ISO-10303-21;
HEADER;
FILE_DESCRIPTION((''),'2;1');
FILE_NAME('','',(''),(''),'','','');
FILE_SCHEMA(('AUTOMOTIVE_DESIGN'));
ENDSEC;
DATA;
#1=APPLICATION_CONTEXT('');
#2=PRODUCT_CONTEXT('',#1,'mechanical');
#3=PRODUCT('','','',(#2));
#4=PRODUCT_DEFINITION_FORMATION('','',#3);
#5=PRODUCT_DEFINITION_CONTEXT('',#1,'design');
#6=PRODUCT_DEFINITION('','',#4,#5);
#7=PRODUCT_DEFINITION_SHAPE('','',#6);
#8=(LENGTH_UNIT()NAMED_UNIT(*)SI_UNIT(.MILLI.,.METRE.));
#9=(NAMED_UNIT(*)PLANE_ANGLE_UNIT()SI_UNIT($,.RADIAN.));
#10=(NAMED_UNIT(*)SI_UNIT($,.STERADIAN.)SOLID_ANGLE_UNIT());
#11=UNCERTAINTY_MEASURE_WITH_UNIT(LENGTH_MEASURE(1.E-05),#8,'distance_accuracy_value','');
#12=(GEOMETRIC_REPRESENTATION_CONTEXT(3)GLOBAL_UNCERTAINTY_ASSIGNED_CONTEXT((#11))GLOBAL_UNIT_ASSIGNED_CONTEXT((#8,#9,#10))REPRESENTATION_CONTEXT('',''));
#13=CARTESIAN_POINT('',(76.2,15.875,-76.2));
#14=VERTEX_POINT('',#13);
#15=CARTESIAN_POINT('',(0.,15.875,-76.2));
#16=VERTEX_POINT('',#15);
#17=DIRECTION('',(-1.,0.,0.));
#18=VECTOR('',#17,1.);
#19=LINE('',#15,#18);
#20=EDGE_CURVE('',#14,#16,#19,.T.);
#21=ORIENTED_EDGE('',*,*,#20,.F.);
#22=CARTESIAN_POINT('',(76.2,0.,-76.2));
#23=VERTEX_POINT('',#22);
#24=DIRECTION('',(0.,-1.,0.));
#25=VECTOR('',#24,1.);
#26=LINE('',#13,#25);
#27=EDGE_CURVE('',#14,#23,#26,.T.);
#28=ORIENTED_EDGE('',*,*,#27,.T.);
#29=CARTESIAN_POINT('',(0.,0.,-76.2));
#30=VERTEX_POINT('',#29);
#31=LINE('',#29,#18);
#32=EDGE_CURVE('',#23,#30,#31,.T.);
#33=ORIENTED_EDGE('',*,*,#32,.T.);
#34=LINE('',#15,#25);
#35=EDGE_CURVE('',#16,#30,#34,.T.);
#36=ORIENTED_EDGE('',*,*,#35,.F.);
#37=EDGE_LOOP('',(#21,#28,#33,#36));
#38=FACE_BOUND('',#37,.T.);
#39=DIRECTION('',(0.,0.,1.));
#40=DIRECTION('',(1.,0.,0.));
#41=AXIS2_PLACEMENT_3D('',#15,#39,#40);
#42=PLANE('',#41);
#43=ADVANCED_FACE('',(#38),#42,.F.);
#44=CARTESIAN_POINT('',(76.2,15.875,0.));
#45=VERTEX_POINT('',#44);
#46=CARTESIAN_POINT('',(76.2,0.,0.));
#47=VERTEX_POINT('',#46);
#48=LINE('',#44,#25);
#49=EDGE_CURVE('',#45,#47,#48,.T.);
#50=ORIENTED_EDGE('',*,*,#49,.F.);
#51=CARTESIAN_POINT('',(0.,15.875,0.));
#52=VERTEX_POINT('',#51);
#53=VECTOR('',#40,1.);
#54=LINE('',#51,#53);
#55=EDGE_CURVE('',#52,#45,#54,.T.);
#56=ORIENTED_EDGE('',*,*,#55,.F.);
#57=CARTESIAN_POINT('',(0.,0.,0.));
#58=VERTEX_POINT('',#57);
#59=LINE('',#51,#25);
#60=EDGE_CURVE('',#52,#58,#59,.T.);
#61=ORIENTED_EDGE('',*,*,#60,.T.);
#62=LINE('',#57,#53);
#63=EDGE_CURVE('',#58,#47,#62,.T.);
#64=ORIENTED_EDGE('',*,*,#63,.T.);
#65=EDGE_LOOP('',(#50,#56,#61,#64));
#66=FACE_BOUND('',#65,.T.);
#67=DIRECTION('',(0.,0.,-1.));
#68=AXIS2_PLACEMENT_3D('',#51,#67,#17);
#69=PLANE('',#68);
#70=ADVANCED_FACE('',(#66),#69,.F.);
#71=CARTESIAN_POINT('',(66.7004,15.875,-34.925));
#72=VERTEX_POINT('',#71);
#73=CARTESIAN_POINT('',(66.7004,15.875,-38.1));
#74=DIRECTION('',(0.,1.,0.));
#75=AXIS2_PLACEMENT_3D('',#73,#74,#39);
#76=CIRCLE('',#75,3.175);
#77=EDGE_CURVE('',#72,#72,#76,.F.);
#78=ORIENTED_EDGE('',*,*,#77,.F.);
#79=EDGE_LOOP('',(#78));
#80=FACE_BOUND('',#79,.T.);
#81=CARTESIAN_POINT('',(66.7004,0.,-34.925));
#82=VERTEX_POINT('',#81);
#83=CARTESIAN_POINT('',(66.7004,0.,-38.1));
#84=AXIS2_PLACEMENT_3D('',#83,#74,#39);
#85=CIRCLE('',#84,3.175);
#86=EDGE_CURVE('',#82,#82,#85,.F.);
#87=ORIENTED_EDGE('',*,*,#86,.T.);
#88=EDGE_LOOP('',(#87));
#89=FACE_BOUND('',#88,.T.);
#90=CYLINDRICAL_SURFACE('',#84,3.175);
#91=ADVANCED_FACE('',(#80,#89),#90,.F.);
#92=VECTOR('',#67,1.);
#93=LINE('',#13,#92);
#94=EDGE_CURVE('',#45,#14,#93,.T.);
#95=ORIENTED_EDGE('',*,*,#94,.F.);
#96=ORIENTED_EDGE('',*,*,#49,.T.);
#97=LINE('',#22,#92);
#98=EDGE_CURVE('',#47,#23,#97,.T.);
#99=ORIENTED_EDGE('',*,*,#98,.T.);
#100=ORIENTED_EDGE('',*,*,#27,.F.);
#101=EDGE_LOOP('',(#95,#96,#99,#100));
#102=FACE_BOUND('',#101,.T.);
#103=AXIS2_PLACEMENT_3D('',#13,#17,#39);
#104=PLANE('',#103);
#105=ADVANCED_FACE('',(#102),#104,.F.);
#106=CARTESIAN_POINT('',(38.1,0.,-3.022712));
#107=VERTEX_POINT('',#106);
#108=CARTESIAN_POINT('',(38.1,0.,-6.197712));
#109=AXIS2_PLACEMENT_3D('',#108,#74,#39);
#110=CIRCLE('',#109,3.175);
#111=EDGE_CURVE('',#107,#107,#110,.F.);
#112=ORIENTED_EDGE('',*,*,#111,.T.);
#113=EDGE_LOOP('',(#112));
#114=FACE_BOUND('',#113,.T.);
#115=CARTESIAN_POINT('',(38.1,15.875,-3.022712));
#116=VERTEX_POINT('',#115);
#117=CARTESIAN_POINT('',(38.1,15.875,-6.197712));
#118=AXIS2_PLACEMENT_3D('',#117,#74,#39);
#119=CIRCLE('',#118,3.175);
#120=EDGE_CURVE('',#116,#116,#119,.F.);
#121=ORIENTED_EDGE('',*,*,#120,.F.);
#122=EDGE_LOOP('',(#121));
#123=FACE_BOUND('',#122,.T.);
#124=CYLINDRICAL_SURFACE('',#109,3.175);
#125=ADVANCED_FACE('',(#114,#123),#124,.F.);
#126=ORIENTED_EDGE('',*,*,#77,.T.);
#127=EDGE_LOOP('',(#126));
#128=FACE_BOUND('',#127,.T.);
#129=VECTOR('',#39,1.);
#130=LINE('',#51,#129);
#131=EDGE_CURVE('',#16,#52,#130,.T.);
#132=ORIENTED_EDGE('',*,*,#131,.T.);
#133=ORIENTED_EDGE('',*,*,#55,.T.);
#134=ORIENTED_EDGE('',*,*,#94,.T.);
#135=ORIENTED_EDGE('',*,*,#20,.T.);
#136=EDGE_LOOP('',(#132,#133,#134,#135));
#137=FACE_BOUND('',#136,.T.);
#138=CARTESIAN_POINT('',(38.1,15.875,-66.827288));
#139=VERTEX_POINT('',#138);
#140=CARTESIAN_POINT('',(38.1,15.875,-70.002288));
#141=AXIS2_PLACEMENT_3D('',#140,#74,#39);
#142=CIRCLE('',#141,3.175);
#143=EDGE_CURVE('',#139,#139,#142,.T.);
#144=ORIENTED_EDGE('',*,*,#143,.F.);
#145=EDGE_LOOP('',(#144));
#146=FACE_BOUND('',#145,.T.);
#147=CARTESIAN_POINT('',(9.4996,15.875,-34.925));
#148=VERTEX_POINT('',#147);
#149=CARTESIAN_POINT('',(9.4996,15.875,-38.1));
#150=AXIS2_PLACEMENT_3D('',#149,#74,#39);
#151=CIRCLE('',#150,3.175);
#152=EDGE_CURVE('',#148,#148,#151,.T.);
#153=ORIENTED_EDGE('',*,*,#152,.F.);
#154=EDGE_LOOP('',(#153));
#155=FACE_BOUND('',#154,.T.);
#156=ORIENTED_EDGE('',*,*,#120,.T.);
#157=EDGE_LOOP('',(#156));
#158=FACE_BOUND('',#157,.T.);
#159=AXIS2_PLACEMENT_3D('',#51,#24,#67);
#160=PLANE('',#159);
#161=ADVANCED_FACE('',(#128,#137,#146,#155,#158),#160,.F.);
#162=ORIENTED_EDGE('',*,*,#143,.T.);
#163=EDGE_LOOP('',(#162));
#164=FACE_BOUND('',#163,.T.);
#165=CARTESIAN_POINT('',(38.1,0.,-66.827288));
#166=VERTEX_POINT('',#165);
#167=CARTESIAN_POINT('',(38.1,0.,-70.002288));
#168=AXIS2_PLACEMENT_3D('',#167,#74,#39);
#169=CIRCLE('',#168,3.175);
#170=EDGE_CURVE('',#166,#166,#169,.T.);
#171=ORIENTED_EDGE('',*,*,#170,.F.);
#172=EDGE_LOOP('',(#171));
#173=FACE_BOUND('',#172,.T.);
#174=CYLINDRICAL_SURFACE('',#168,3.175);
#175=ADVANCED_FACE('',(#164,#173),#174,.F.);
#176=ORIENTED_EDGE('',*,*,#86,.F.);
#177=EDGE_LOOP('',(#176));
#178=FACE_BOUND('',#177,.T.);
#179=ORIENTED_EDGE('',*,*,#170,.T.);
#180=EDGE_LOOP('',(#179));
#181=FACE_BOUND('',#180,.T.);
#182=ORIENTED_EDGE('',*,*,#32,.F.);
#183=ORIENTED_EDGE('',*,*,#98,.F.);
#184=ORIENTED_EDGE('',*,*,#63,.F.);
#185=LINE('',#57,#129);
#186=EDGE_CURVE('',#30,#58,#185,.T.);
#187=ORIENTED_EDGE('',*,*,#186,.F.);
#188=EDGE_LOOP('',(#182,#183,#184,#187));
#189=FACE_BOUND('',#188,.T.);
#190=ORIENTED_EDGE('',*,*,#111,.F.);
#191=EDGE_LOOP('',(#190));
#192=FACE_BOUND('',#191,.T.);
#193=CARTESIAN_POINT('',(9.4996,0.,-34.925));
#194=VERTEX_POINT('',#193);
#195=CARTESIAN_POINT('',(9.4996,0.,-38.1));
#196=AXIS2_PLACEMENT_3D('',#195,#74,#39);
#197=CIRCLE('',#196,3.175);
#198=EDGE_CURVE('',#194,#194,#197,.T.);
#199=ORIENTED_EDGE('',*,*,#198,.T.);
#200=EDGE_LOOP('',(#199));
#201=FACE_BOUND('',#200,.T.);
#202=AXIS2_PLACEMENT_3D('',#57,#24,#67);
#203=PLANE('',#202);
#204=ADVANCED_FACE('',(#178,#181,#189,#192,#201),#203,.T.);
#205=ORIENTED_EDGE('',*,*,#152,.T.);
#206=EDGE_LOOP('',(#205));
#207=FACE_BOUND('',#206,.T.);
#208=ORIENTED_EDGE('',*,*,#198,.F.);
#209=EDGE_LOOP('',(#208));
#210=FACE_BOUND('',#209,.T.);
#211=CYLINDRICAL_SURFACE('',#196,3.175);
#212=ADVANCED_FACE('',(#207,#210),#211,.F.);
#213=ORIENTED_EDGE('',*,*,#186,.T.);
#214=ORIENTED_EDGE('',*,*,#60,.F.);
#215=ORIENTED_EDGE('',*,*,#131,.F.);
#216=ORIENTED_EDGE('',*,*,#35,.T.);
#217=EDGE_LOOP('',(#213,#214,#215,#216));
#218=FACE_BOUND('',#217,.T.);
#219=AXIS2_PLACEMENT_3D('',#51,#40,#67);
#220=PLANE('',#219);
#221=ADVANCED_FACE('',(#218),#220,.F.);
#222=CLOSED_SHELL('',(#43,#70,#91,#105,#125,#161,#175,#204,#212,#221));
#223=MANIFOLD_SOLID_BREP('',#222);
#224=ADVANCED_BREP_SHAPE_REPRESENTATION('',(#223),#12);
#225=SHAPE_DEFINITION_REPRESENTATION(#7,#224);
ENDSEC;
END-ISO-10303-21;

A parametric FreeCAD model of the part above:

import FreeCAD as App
import Part
import Sketcher
Q = App.Units.Quantity


def add_polygon(sketch, points):
    """Adds a closed chain of lines whose ends are joined by coincident constraints."""
    first, n = sketch.GeometryCount, len(points)
    for a, b in zip(points, points[1:] + points[:1]):
        sketch.addGeometry(Part.LineSegment(App.Vector(*a, 0), App.Vector(*b, 0)), False)
    for i in range(n):
        sketch.addConstraint(Sketcher.Constraint("Coincident", first + i, 2, first + (i + 1) % n, 1))

doc = App.newDocument("Part")
body = doc.addObject("PartDesign::Body", "Body")

# Sketch on XZ plane
sketch1 = body.newObject("Sketcher::SketchObject", "Sketch")
sketch1.AttachmentSupport = (doc.getObject("XZ_Plane"), [""])
sketch1.MapMode = "FlatFace"
add_polygon(sketch1, [(0, -76), (0, 0), (76, 0), (76, -76)])  # lines 0-3
sketch1.addConstraint(Sketcher.Constraint("Vertical", 0))
sketch1.addConstraint(Sketcher.Constraint("Horizontal", 1))
sketch1.addConstraint(Sketcher.Constraint("Vertical", 2))
sketch1.addConstraint(Sketcher.Constraint("Horizontal", 3))
sketch1.addConstraint(Sketcher.Constraint("Coincident", 0, 2, -1, 1))
sketch1.addConstraint(Sketcher.Constraint("Equal", 3, 0))
sketch1.addConstraint(Sketcher.Constraint("DistanceX", 1, 1, 1, 2, Q("3 in")))
pad1 = body.newObject("PartDesign::Pad", "Pad")
pad1.Profile = sketch1
pad1.Length = Q("0.625 in")
pad1.Reversed = True

# Sketch on XZ plane
sketch2 = body.newObject("Sketcher::SketchObject", "Sketch001")
sketch2.AttachmentSupport = (doc.getObject("XZ_Plane"), [""])
sketch2.MapMode = "FlatFace"
sketch2.AttachmentOffset = App.Placement(App.Vector(0, 0, -0.625 * 25.4), App.Rotation())
sketch2.addGeometry(Part.Circle(App.Vector(38.1, -70, 0), App.Vector(0, 0, 1), 3.2), False)
sketch2.addGeometry(Part.Circle(App.Vector(38.1, -6.2, 0), App.Vector(0, 0, 1), 3.2), False)
sketch2.addConstraint(Sketcher.Constraint("Equal", 0, 1))
sketch2.addConstraint(Sketcher.Constraint("Vertical", 0, 3, 1, 3))
sketch2.addConstraint(Sketcher.Constraint("Diameter", 0, Q("0.25 in")))
sketch2.addConstraint(Sketcher.Constraint("DistanceX", -1, 1, 0, 3, Q("1.5 in")))
sketch2.addConstraint(Sketcher.Constraint("DistanceY", 0, 3, -1, 1, 70.002288))
sketch2.addConstraint(Sketcher.Constraint("DistanceY", 1, 3, -1, 1, 6.197712))
pocket1 = body.newObject("PartDesign::Pocket", "Pocket")
pocket1.Profile = sketch2
pocket1.Type = "ThroughAll"
pocket1.Reversed = True

# Sketch on XZ plane
sketch3 = body.newObject("Sketcher::SketchObject", "Sketch002")
sketch3.AttachmentSupport = (doc.getObject("XZ_Plane"), [""])
sketch3.MapMode = "FlatFace"
sketch3.AttachmentOffset = App.Placement(App.Vector(0, 0, -0.625 * 25.4), App.Rotation())
sketch3.addGeometry(Part.Circle(App.Vector(9.5, -38.1, 0), App.Vector(0, 0, 1), 3.2), False)
sketch3.addGeometry(Part.Circle(App.Vector(66.7, -38.1, 0), App.Vector(0, 0, 1), 3.2), False)
sketch3.addConstraint(Sketcher.Constraint("Equal", 0, 1))
sketch3.addConstraint(Sketcher.Constraint("Horizontal", 0, 3, 1, 3))
sketch3.addConstraint(Sketcher.Constraint("Diameter", 0, Q("0.25 in")))
sketch3.addConstraint(Sketcher.Constraint("DistanceY", 0, 3, -1, 1, Q("1.5 in")))
sketch3.addConstraint(Sketcher.Constraint("DistanceX", -1, 1, 0, 3, Q("0.374 in")))
sketch3.addConstraint(Sketcher.Constraint("DistanceX", -1, 1, 1, 3, Q("2.626 in")))
pocket2 = body.newObject("PartDesign::Pocket", "Pocket001")
pocket2.Profile = sketch3
pocket2.Type = "ThroughAll"
pocket2.Reversed = True

doc.recompute()
